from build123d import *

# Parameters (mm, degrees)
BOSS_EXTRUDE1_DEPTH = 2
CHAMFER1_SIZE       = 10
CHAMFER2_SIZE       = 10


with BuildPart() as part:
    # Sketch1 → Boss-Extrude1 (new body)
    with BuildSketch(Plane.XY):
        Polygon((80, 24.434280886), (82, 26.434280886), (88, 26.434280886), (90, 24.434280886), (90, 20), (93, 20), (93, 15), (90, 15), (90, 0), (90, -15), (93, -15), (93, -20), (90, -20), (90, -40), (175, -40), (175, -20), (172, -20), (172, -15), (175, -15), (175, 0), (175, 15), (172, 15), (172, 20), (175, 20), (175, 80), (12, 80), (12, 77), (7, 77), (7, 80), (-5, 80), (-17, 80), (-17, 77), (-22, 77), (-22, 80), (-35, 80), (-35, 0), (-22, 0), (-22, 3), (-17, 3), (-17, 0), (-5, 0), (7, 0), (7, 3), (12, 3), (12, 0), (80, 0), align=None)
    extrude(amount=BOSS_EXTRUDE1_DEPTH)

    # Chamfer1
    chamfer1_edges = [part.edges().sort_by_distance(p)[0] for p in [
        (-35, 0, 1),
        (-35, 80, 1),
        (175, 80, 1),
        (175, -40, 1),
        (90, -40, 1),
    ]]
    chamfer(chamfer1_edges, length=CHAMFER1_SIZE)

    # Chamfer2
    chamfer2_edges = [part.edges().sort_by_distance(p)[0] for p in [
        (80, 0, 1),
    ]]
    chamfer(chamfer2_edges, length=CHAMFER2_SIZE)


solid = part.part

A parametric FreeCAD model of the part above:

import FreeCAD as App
import Part
import Sketcher

V = App.Vector


def edges_at(feature, points):
    """Names of the edges that pass closest to the given points."""
    edges = feature.Shape.Edges
    near = lambda p: min(range(len(edges)), key=lambda i: edges[i].distToShape(Part.Vertex(*p))[0])
    return sorted({f"Edge{near(p) + 1}" for p in points})

doc = App.newDocument("Part")
body = doc.addObject("PartDesign::Body", "Body")

sketch1 = body.newObject("Sketcher::SketchObject", "Sketch")
sketch1.AttachmentSupport = (doc.getObject("XY_Plane"), [""])
sketch1.MapMode = "FlatFace"
sketch1.addGeometry(Part.LineSegment(V(80, 24.4, 0), V(82, 26.4, 0)), False)
sketch1.addGeometry(Part.LineSegment(V(82, 26.4, 0), V(88, 26.4, 0)), False)
sketch1.addGeometry(Part.LineSegment(V(88, 26.4, 0), V(90, 24.4, 0)), False)
sketch1.addGeometry(Part.LineSegment(V(90, 24.4, 0), V(90, 20, 0)), False)
sketch1.addGeometry(Part.LineSegment(V(90, 20, 0), V(93, 20, 0)), False)
sketch1.addGeometry(Part.LineSegment(V(93, 20, 0), V(93, 15, 0)), False)
sketch1.addGeometry(Part.LineSegment(V(93, 15, 0), V(90, 15, 0)), False)
sketch1.addGeometry(Part.LineSegment(V(90, 15, 0), V(90, -15, 0)), False)
sketch1.addGeometry(Part.LineSegment(V(90, -15, 0), V(93, -15, 0)), False)
sketch1.addGeometry(Part.LineSegment(V(93, -15, 0), V(93, -20, 0)), False)
sketch1.addGeometry(Part.LineSegment(V(93, -20, 0), V(90, -20, 0)), False)
sketch1.addGeometry(Part.LineSegment(V(90, -20, 0), V(90, -40, 0)), False)
sketch1.addGeometry(Part.LineSegment(V(90, -40, 0), V(175, -40, 0)), False)
sketch1.addGeometry(Part.LineSegment(V(175, -40, 0), V(175, -20, 0)), False)
sketch1.addGeometry(Part.LineSegment(V(175, -20, 0), V(172, -20, 0)), False)
sketch1.addGeometry(Part.LineSegment(V(172, -20, 0), V(172, -15, 0)), False)
sketch1.addGeometry(Part.LineSegment(V(172, -15, 0), V(175, -15, 0)), False)
sketch1.addGeometry(Part.LineSegment(V(175, -15, 0), V(175, 15, 0)), False)
sketch1.addGeometry(Part.LineSegment(V(175, 15, 0), V(172, 15, 0)), False)
sketch1.addGeometry(Part.LineSegment(V(172, 15, 0), V(172, 20, 0)), False)
sketch1.addGeometry(Part.LineSegment(V(172, 20, 0), V(175, 20, 0)), False)
sketch1.addGeometry(Part.LineSegment(V(175, 20, 0), V(175, 80, 0)), False)
sketch1.addGeometry(Part.LineSegment(V(175, 80, 0), V(12, 80, 0)), False)
sketch1.addGeometry(Part.LineSegment(V(12, 80, 0), V(12, 77, 0)), False)
sketch1.addGeometry(Part.LineSegment(V(12, 77, 0), V(7, 77, 0)), False)
sketch1.addGeometry(Part.LineSegment(V(7, 77, 0), V(7, 80, 0)), False)
sketch1.addGeometry(Part.LineSegment(V(7, 80, 0), V(-17, 80, 0)), False)
sketch1.addGeometry(Part.LineSegment(V(-17, 80, 0), V(-17, 77, 0)), False)
sketch1.addGeometry(Part.LineSegment(V(-17, 77, 0), V(-22, 77, 0)), False)
sketch1.addGeometry(Part.LineSegment(V(-22, 77, 0), V(-22, 80, 0)), False)
sketch1.addGeometry(Part.LineSegment(V(-22, 80, 0), V(-35, 80, 0)), False)
sketch1.addGeometry(Part.LineSegment(V(-35, 80, 0), V(-35, 0, 0)), False)
sketch1.addGeometry(Part.LineSegment(V(-35, 0, 0), V(-22, 0, 0)), False)
sketch1.addGeometry(Part.LineSegment(V(-22, 0, 0), V(-22, 3, 0)), False)
sketch1.addGeometry(Part.LineSegment(V(-22, 3, 0), V(-17, 3, 0)), False)
sketch1.addGeometry(Part.LineSegment(V(-17, 3, 0), V(-17, 0, 0)), False)
sketch1.addGeometry(Part.LineSegment(V(-17, 0, 0), V(7, 0, 0)), False)
sketch1.addGeometry(Part.LineSegment(V(7, 0, 0), V(7, 3, 0)), False)
sketch1.addGeometry(Part.LineSegment(V(7, 3, 0), V(12, 3, 0)), False)
sketch1.addGeometry(Part.LineSegment(V(12, 3, 0), V(12, 0, 0)), False)
sketch1.addGeometry(Part.LineSegment(V(12, 0, 0), V(80, 0, 0)), False)
sketch1.addGeometry(Part.LineSegment(V(80, 0, 0), V(80, 24.4, 0)), False)
sketch1.addConstraint(Sketcher.Constraint("Coincident", 0, 2, 1, 1))
sketch1.addConstraint(Sketcher.Constraint("Coincident", 1, 2, 2, 1))
sketch1.addConstraint(Sketcher.Constraint("Coincident", 2, 2, 3, 1))
sketch1.addConstraint(Sketcher.Constraint("Coincident", 3, 2, 4, 1))
sketch1.addConstraint(Sketcher.Constraint("Coincident", 4, 2, 5, 1))
sketch1.addConstraint(Sketcher.Constraint("Coincident", 5, 2, 6, 1))
sketch1.addConstraint(Sketcher.Constraint("Coincident", 6, 2, 7, 1))
sketch1.addConstraint(Sketcher.Constraint("Coincident", 7, 2, 8, 1))
sketch1.addConstraint(Sketcher.Constraint("Coincident", 8, 2, 9, 1))
sketch1.addConstraint(Sketcher.Constraint("Coincident", 9, 2, 10, 1))
sketch1.addConstraint(Sketcher.Constraint("Coincident", 10, 2, 11, 1))
sketch1.addConstraint(Sketcher.Constraint("Coincident", 11, 2, 12, 1))
sketch1.addConstraint(Sketcher.Constraint("Coincident", 12, 2, 13, 1))
sketch1.addConstraint(Sketcher.Constraint("Coincident", 13, 2, 14, 1))
sketch1.addConstraint(Sketcher.Constraint("Coincident", 14, 2, 15, 1))
sketch1.addConstraint(Sketcher.Constraint("Coincident", 15, 2, 16, 1))
sketch1.addConstraint(Sketcher.Constraint("Coincident", 16, 2, 17, 1))
sketch1.addConstraint(Sketcher.Constraint("Coincident", 17, 2, 18, 1))
sketch1.addConstraint(Sketcher.Constraint("Coincident", 18, 2, 19, 1))
sketch1.addConstraint(Sketcher.Constraint("Coincident", 19, 2, 20, 1))
sketch1.addConstraint(Sketcher.Constraint("Coincident", 20, 2, 21, 1))
sketch1.addConstraint(Sketcher.Constraint("Coincident", 21, 2, 22, 1))
sketch1.addConstraint(Sketcher.Constraint("Coincident", 22, 2, 23, 1))
sketch1.addConstraint(Sketcher.Constraint("Coincident", 23, 2, 24, 1))
sketch1.addConstraint(Sketcher.Constraint("Coincident", 24, 2, 25, 1))
sketch1.addConstraint(Sketcher.Constraint("Coincident", 25, 2, 26, 1))
sketch1.addConstraint(Sketcher.Constraint("Coincident", 26, 2, 27, 1))
sketch1.addConstraint(Sketcher.Constraint("Coincident", 27, 2, 28, 1))
sketch1.addConstraint(Sketcher.Constraint("Coincident", 28, 2, 29, 1))
sketch1.addConstraint(Sketcher.Constraint("Coincident", 29, 2, 30, 1))
sketch1.addConstraint(Sketcher.Constraint("Coincident", 30, 2, 31, 1))
sketch1.addConstraint(Sketcher.Constraint("Coincident", 31, 2, 32, 1))
sketch1.addConstraint(Sketcher.Constraint("Coincident", 32, 2, 33, 1))
sketch1.addConstraint(Sketcher.Constraint("Coincident", 33, 2, 34, 1))
sketch1.addConstraint(Sketcher.Constraint("Coincident", 34, 2, 35, 1))
sketch1.addConstraint(Sketcher.Constraint("Coincident", 35, 2, 36, 1))
sketch1.addConstraint(Sketcher.Constraint("Coincident", 36, 2, 37, 1))
sketch1.addConstraint(Sketcher.Constraint("Coincident", 37, 2, 38, 1))
sketch1.addConstraint(Sketcher.Constraint("Coincident", 38, 2, 39, 1))
sketch1.addConstraint(Sketcher.Constraint("Coincident", 39, 2, 40, 1))
sketch1.addConstraint(Sketcher.Constraint("Coincident", 40, 2, 41, 1))
sketch1.addConstraint(Sketcher.Constraint("Coincident", 41, 2, 0, 1))
sketch1.addConstraint(Sketcher.Constraint("Horizontal", 1))
sketch1.addConstraint(Sketcher.Constraint("Vertical", 3))
sketch1.addConstraint(Sketcher.Constraint("Horizontal", 4))
sketch1.addConstraint(Sketcher.Constraint("Vertical", 5))
sketch1.addConstraint(Sketcher.Constraint("Horizontal", 6))
sketch1.addConstraint(Sketcher.Constraint("Vertical", 7))
sketch1.addConstraint(Sketcher.Constraint("Horizontal", 8))
sketch1.addConstraint(Sketcher.Constraint("Vertical", 9))
sketch1.addConstraint(Sketcher.Constraint("Horizontal", 10))
sketch1.addConstraint(Sketcher.Constraint("Vertical", 11))
sketch1.addConstraint(Sketcher.Constraint("Horizontal", 12))
sketch1.addConstraint(Sketcher.Constraint("Vertical", 13))
sketch1.addConstraint(Sketcher.Constraint("Horizontal", 14))
sketch1.addConstraint(Sketcher.Constraint("Vertical", 15))
sketch1.addConstraint(Sketcher.Constraint("Horizontal", 16))
sketch1.addConstraint(Sketcher.Constraint("Vertical", 17))
sketch1.addConstraint(Sketcher.Constraint("Horizontal", 18))
sketch1.addConstraint(Sketcher.Constraint("Vertical", 19))
sketch1.addConstraint(Sketcher.Constraint("Horizontal", 20))
sketch1.addConstraint(Sketcher.Constraint("Vertical", 21))
sketch1.addConstraint(Sketcher.Constraint("Horizontal", 22))
sketch1.addConstraint(Sketcher.Constraint("Vertical", 23))
sketch1.addConstraint(Sketcher.Constraint("Horizontal", 24))
sketch1.addConstraint(Sketcher.Constraint("Vertical", 25))
sketch1.addConstraint(Sketcher.Constraint("Horizontal", 26))
sketch1.addConstraint(Sketcher.Constraint("Vertical", 27))
sketch1.addConstraint(Sketcher.Constraint("Horizontal", 28))
sketch1.addConstraint(Sketcher.Constraint("Vertical", 29))
sketch1.addConstraint(Sketcher.Constraint("Horizontal", 30))
sketch1.addConstraint(Sketcher.Constraint("Vertical", 31))
sketch1.addConstraint(Sketcher.Constraint("Horizontal", 32))
sketch1.addConstraint(Sketcher.Constraint("Vertical", 33))
sketch1.addConstraint(Sketcher.Constraint("Horizontal", 34))
sketch1.addConstraint(Sketcher.Constraint("Vertical", 35))
sketch1.addConstraint(Sketcher.Constraint("Horizontal", 36))
sketch1.addConstraint(Sketcher.Constraint("Vertical", 37))
sketch1.addConstraint(Sketcher.Constraint("Horizontal", 38))
sketch1.addConstraint(Sketcher.Constraint("Vertical", 39))
sketch1.addConstraint(Sketcher.Constraint("Horizontal", 40))
sketch1.addConstraint(Sketcher.Constraint("Vertical", 41))
sketch1.addConstraint(Sketcher.Constraint("Symmetric", 5, 2, 8, 2, -1))
sketch1.addConstraint(Sketcher.Constraint("Symmetric", 3, 2, 10, 2, -1))
sketch1.addConstraint(Sketcher.Constraint("Symmetric", 15, 2, 18, 2, -1))
sketch1.addConstraint(Sketcher.Constraint("Symmetric", 13, 2, 20, 2, -1))
sketch1.addConstraint(Sketcher.Constraint("PointOnObject", 31, 2, -1))
sketch1.addConstraint(Sketcher.Constraint("PointOnObject", 35, 2, -1))
sketch1.addConstraint(Sketcher.Constraint("PointOnObject", 39, 2, -1))
sketch1.addConstraint(Sketcher.Constraint("Perpendicular", 0, 2))
sketch1.addConstraint(Sketcher.Constraint("Horizontal", 10, 2, 13, 2))
sketch1.addConstraint(Sketcher.Constraint("Horizontal", 8, 2, 15, 2))
sketch1.addConstraint(Sketcher.Constraint("Horizontal", 22, 2, 25, 2))
sketch1.addConstraint(Sketcher.Constraint("Horizontal", 24, 2, 27, 2))
sketch1.addConstraint(Sketcher.Constraint("Horizontal", 26, 2, 29, 2))
sketch1.addConstraint(Sketcher.Constraint("Horizontal", 34, 2, 37, 2))
sketch1.addConstraint(Sketcher.Constraint("Horizontal", 2, 2, 41, 2))
sketch1.addConstraint(Sketcher.Constraint("Vertical", 3, 2, 6, 2))
sketch1.addConstraint(Sketcher.Constraint("Vertical", 13, 2, 16, 2))
sketch1.addConstraint(Sketcher.Constraint("Vertical", 29, 2, 32, 2))
sketch1.addConstraint(Sketcher.Constraint("Vertical", 27, 2, 34, 2))
sketch1.addConstraint(Sketcher.Constraint("Vertical", 25, 2, 36, 2))
sketch1.addConstraint(Sketcher.Constraint("Vertical", 23, 2, 38, 2))
sketch1.addConstraint(Sketcher.Constraint("Equal", 10, 14))
sketch1.addConstraint(Sketcher.Constraint("Equal", 24, 28))
sketch1.addConstraint(Sketcher.Constraint("Equal", 38, 5))
sketch1.addConstraint(Sketcher.Constraint("Equal", 20, 23))
sketch1.addConstraint(Sketcher.Constraint("Equal", 29, 33))
sketch1.addConstraint(Sketcher.Constraint("Equal", 0, 2))
sketch1.addConstraint(Sketcher.Constraint("DistanceX", 1, 1, 1, 2, 6.0))
sketch1.addConstraint(Sketcher.Constraint("DistanceX", 4, 1, 4, 2, 3.0))
sketch1.addConstraint(Sketcher.Constraint("DistanceX", 12, 1, 12, 2, 85.0))
sketch1.addConstraint(Sketcher.Constraint("DistanceX", 22, 2, 22, 1, 163.0))
sketch1.addConstraint(Sketcher.Constraint("DistanceX", 24, 2, 24, 1, 5.0))
sketch1.addConstraint(Sketcher.Constraint("DistanceX", 26, 2, 26, 1, 24.0))
sketch1.addConstraint(Sketcher.Constraint("DistanceX", 30, 2, 30, 1, 13.0))
sketch1.addConstraint(Sketcher.Constraint("DistanceX", 40, 1, 40, 2, 68.0))
sketch1.addConstraint(Sketcher.Constraint("DistanceY", 7, 2, 7, 1, 30.0))
sketch1.addConstraint(Sketcher.Constraint("DistanceY", 11, 2, 11, 1, 20.0))
sketch1.addConstraint(Sketcher.Constraint("DistanceY", 21, 1, 21, 2, 60.0))
sketch1.addConstraint(Sketcher.Constraint("DistanceX", -1, 1, 0, 2, 82.0))
sketch1.addConstraint(Sketcher.Constraint("DistanceY", 3, 2, 3, 1, 4.434281))
pad1 = body.newObject("PartDesign::Pad", "Pad")
pad1.Profile = sketch1
pad1.Length = 2
doc.recompute()

chamfer = body.newObject("PartDesign::Chamfer", "Chamfer")
chamfer.Base = (pad1, edges_at(pad1, [
    (-35, 0, 1),
    (-35, 80, 1),
    (175, 80, 1),
    (175, -40, 1),
    (90, -40, 1),
]))
chamfer.Size = 10
doc.recompute()

chamfer2 = body.newObject("PartDesign::Chamfer", "Chamfer001")
chamfer2.Base = (chamfer, edges_at(chamfer, [(80, 0, 1)]))
chamfer2.Size = 10

doc.recompute()
